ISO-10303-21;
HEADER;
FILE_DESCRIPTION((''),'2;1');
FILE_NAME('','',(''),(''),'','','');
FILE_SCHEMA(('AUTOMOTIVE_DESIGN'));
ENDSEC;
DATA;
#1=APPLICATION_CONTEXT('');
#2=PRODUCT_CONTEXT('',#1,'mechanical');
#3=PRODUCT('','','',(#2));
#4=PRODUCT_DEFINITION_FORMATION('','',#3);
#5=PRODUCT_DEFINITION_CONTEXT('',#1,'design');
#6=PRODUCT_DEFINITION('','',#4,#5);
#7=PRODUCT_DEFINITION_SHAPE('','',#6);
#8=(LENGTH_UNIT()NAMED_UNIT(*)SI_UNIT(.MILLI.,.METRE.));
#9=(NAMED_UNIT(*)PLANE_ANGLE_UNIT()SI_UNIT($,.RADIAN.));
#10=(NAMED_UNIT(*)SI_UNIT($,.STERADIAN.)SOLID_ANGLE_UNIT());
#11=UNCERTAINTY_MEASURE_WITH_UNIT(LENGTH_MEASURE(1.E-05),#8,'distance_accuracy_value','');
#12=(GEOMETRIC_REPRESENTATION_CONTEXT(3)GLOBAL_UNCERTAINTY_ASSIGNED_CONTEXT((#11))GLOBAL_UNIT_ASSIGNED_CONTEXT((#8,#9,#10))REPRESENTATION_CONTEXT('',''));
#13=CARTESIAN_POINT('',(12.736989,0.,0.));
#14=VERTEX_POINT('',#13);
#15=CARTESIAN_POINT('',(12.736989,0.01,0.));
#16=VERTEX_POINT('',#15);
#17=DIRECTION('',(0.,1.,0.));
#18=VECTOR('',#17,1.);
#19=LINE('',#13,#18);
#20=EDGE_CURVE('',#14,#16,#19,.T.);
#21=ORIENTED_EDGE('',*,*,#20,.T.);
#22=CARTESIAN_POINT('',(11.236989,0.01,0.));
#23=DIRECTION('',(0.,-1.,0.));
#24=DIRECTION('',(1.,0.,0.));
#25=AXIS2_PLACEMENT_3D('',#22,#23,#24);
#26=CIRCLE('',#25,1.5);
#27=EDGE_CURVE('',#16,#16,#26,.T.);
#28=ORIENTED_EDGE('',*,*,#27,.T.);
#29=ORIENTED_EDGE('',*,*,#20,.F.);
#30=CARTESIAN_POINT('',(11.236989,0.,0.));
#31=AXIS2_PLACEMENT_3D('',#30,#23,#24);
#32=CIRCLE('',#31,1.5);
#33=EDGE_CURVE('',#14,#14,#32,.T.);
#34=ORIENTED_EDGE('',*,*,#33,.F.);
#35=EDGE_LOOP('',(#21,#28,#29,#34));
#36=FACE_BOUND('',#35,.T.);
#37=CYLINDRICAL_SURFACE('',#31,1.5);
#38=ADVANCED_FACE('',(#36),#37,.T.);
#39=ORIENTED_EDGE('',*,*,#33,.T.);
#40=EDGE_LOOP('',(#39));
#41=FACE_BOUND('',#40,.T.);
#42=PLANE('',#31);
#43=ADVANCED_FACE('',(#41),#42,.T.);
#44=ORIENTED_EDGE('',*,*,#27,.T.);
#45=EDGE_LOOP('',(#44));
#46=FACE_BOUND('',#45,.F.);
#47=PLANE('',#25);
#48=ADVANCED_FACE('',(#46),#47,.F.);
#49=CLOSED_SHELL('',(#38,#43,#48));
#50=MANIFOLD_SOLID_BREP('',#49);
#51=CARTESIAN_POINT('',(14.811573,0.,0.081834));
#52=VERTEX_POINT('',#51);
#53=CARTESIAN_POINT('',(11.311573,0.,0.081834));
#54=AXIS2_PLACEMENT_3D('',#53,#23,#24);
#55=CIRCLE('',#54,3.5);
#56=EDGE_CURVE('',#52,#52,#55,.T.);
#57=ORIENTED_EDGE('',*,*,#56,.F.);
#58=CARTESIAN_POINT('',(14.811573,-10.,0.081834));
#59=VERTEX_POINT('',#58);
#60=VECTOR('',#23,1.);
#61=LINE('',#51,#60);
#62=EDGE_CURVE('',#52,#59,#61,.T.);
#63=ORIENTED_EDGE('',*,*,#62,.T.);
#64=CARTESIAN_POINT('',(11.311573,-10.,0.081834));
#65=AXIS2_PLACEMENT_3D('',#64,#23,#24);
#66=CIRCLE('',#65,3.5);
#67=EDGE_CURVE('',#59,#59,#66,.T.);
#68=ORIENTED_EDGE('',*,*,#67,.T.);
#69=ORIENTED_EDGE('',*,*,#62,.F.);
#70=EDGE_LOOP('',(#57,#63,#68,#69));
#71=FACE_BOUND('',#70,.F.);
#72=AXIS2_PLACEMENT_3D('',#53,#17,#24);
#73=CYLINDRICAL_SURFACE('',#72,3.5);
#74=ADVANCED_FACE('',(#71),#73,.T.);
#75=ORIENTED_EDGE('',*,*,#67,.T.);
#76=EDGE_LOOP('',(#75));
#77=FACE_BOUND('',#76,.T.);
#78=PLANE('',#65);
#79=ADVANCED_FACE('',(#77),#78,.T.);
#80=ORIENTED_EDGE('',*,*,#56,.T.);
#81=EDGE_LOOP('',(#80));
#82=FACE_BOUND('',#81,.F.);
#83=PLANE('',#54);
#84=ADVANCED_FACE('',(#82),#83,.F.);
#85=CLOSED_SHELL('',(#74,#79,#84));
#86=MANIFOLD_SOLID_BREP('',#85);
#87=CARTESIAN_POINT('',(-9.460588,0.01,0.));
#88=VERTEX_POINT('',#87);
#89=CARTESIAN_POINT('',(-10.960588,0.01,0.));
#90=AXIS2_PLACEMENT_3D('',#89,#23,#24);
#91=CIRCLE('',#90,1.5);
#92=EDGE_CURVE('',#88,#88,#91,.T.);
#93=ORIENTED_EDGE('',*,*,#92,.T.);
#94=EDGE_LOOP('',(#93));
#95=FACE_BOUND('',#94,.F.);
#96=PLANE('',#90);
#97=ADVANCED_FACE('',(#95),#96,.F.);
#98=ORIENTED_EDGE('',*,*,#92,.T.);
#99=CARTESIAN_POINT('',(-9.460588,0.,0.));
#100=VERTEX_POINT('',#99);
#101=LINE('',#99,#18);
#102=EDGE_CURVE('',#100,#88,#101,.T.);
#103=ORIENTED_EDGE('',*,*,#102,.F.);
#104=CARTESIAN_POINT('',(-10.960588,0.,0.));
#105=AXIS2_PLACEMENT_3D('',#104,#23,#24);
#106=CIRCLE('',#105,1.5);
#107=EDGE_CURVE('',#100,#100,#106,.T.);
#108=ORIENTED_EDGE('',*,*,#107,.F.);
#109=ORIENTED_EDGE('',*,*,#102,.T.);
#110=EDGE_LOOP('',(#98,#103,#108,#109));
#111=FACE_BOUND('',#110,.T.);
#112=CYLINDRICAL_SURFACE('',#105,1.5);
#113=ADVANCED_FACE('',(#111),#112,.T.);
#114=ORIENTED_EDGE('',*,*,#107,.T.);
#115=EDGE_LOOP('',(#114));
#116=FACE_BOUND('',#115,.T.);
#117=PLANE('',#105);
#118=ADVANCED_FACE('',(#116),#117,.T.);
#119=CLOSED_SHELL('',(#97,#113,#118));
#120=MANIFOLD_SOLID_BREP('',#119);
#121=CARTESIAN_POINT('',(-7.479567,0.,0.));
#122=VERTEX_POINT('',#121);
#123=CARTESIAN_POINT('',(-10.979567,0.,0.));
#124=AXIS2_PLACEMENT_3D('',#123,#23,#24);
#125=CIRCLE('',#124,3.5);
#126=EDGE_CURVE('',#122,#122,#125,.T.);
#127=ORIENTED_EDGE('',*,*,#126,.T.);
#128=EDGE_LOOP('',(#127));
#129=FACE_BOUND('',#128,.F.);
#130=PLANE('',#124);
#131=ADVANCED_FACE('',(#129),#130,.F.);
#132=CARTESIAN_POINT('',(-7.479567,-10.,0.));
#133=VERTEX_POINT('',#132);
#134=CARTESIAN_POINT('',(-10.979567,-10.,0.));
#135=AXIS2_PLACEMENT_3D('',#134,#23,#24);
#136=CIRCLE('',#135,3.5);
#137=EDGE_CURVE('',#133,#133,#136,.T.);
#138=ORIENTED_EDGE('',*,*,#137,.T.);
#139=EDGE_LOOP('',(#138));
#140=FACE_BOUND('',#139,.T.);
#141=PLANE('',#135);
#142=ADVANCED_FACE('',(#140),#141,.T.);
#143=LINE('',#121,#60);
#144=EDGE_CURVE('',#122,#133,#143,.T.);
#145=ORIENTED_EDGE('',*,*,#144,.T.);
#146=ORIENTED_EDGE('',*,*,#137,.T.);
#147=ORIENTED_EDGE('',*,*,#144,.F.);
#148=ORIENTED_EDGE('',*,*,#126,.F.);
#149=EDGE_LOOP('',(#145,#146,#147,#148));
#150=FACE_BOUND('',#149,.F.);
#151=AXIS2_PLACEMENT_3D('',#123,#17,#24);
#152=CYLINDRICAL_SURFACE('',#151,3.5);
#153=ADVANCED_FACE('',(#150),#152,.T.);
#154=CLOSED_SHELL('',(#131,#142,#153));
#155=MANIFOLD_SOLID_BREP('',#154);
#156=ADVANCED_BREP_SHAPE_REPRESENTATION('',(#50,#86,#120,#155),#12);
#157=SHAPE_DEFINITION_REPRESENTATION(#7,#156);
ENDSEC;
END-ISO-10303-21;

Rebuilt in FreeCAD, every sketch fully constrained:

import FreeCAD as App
import Part
import Sketcher
from FreeCAD import Vector

doc = App.newDocument("Part")
body = doc.addObject("PartDesign::Body", "Body")
body.AllowCompound = True

sketch1 = body.newObject("Sketcher::SketchObject", "Sketch")
sketch1.AttachmentSupport = (doc.getObject("XZ_Plane"), [""])
sketch1.MapMode = "FlatFace"
sketch1.addGeometry([
    Part.Circle(Vector(-10.979567, 0, 0), Vector(0, 0, 1), 3.5),
    Part.Circle(Vector(11.311573, 0.081834, 0), Vector(0, 0, 1), 3.5),
], False)
sketch1.addConstraint([
    Sketcher.Constraint("Equal", 0, 1),
    Sketcher.Constraint("PointOnObject", 0, 3, -1),
    Sketcher.Constraint("Diameter", 0, 7.0),
    Sketcher.Constraint("DistanceX", 0, 3, 1, 3, 22.29114),
    Sketcher.Constraint("DistanceX", 0, 3, -1, 1, 10.979567),
    Sketcher.Constraint("DistanceY", -1, 1, 1, 3, 0.081834),
])
pad1 = body.newObject("PartDesign::Pad", "Pad")
pad1.Profile = sketch1
pad1.Length = 10
body2 = doc.addObject("PartDesign::Body", "Body001")
body2.AllowCompound = True

sketch2 = body2.newObject("Sketcher::SketchObject", "Sketch001")
sketch2.AttachmentSupport = (doc.getObject("XZ_Plane001"), [""])
sketch2.MapMode = "FlatFace"
sketch2.addGeometry([
    Part.Circle(Vector(-10.960588, 0, 0), Vector(0, 0, 1), 1.5),
    Part.Circle(Vector(11.236989, 0, 0), Vector(0, 0, 1), 1.5),
], False)
sketch2.addConstraint([
    Sketcher.Constraint("Equal", 0, 1),
    Sketcher.Constraint("PointOnObject", 0, 3, -1),
    Sketcher.Constraint("PointOnObject", 1, 3, -1),
    Sketcher.Constraint("Diameter", 0, 3.0),
    Sketcher.Constraint("DistanceX", -1, 1, 1, 3, 11.236989),
    Sketcher.Constraint("DistanceX", 0, 3, -1, 1, 10.960588),
])
pad2 = body2.newObject("PartDesign::Pad", "Pad001")
pad2.Profile = sketch2
pad2.Length = 0.01
pad2.Reversed = True

doc.recompute()
